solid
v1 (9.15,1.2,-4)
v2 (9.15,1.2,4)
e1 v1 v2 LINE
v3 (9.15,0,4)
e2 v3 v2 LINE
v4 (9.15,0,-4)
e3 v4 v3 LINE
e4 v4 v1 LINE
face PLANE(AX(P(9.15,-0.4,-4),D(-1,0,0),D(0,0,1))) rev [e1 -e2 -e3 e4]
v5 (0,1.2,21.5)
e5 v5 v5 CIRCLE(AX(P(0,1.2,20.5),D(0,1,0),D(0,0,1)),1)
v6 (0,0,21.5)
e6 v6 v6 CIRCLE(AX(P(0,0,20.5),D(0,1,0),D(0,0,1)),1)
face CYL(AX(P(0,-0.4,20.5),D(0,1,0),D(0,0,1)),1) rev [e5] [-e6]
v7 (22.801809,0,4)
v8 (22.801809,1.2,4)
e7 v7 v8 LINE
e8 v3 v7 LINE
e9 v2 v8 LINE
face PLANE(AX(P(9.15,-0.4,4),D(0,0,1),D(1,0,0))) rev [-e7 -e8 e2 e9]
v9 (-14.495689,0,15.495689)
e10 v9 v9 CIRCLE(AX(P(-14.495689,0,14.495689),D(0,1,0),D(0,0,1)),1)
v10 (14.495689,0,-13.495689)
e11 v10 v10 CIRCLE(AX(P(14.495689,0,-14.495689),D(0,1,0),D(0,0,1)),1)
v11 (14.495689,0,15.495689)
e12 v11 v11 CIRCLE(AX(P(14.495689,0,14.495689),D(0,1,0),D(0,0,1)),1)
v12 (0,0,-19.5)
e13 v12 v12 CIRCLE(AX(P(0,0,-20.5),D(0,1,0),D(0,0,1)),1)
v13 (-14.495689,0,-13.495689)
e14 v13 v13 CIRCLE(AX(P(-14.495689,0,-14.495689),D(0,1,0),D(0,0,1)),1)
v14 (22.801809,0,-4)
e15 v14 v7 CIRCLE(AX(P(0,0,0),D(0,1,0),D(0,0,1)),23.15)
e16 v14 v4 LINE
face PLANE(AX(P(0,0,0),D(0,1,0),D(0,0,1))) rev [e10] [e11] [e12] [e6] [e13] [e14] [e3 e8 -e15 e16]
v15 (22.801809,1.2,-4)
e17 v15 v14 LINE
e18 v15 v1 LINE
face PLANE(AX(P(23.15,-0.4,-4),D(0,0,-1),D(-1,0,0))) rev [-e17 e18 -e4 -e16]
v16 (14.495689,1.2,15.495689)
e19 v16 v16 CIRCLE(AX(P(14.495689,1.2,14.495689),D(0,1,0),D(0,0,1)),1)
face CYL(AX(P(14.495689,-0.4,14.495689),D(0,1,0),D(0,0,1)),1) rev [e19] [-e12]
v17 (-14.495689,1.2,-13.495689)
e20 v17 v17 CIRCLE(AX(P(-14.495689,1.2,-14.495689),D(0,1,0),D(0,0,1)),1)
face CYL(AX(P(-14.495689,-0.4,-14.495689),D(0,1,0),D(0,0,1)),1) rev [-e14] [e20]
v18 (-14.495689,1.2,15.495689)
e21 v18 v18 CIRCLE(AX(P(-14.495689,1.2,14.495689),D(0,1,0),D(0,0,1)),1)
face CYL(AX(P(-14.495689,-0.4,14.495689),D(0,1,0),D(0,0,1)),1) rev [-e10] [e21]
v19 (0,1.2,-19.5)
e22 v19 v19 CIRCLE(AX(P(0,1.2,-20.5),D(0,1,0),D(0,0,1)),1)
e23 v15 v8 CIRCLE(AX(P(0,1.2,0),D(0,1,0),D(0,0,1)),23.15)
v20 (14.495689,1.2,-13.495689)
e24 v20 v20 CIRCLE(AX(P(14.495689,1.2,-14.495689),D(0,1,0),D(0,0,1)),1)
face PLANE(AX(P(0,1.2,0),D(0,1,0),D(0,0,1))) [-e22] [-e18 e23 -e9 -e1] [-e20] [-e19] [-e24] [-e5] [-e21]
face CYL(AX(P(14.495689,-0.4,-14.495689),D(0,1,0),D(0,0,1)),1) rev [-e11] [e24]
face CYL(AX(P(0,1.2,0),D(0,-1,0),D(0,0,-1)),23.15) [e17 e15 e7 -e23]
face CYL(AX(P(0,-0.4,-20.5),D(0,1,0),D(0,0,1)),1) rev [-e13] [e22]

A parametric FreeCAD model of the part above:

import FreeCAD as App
import Part
import Sketcher

V = App.Vector

doc = App.newDocument("Part")
body = doc.addObject("PartDesign::Body", "Body")

# Sketch on XZ plane
sketch1 = doc.addObject("Sketcher::SketchObject", "Sketch")
body.addObject(sketch1)
sketch1.AttachmentSupport = (doc.XZ_Plane, [""])
sketch1.MapMode = "FlatFace"
sketch1.addGeometry(Part.Circle(V(0, 0, 0), V(0, 0, 1), 23), False)
sketch1.addConstraint([
    Sketcher.Constraint("Coincident", 0, 3, -1, 1),
    Sketcher.Constraint("Diameter", 0, 46.3),
])
pad1 = doc.addObject("PartDesign::Pad", "Pad")
body.addObject(pad1)
pad1.Profile = sketch1
pad1.Length = 1.2
pad1.Reversed = True

# Sketch on XZ plane
sketch2 = doc.addObject("Sketcher::SketchObject", "Sketch001")
body.addObject(sketch2)
sketch2.AttachmentSupport = (doc.XZ_Plane, [""])
sketch2.MapMode = "FlatFace"
sketch2.AttachmentOffset = App.Placement(V(0, 0, -1.2), App.Rotation())
sketch2.addGeometry([
    Part.Circle(V(0, -20.5, 0), V(0, 0, 1), 1),  # 0
    Part.Circle(V(14.5, -14.5, 0), V(0, 0, 1), 1),  # 1
    Part.Circle(V(14.5, 14.5, 0), V(0, 0, 1), 1),  # 2
    Part.Circle(V(0, 20.5, 0), V(0, 0, 1), 1),  # 3
    Part.Circle(V(-14.5, 14.5, 0), V(0, 0, 1), 1),  # 4
    Part.Circle(V(-14.5, -14.5, 0), V(0, 0, 1), 1),  # 5
    Part.LineSegment(V(23.1, -4, 0), V(9.2, -4, 0)),  # 6
    Part.LineSegment(V(9.2, -4, 0), V(9.2, 4, 0)),  # 7
    Part.LineSegment(V(9.2, 4, 0), V(23.1, 4, 0)),  # 8
    Part.LineSegment(V(23.1, 4, 0), V(23.1, -4, 0)),  # 9
], False)
sketch2.addConstraint([
    Sketcher.Constraint("Coincident", 6, 2, 7, 1),
    Sketcher.Constraint("Coincident", 7, 2, 8, 1),
    Sketcher.Constraint("Coincident", 8, 2, 9, 1),
    Sketcher.Constraint("Coincident", 9, 2, 6, 1),
    Sketcher.Constraint("Horizontal", 6),
    Sketcher.Constraint("Vertical", 7),
    Sketcher.Constraint("Horizontal", 8),
    Sketcher.Constraint("Vertical", 9),
    Sketcher.Constraint("Equal", 0, 1),
    Sketcher.Constraint("Equal", 1, 2),
    Sketcher.Constraint("Equal", 2, 3),
    Sketcher.Constraint("Equal", 3, 4),
    Sketcher.Constraint("Equal", 4, 5),
    Sketcher.Constraint("Symmetric", 0, 3, 3, 3, -1, 1),
    Sketcher.Constraint("Symmetric", 1, 3, 4, 3, -1, 1),
    Sketcher.Constraint("Symmetric", 2, 3, 5, 3, -1, 1),
    Sketcher.Constraint("Symmetric", 2, 3, 4, 3, -2),
    Sketcher.Constraint("PointOnObject", 0, 3, -2),
    Sketcher.Constraint("Diameter", 0, 2.0),
    Sketcher.Constraint("DistanceX", 6, 2, 6, 1, 14.0),
    Sketcher.Constraint("DistanceY", 7, 1, 7, 2, 8.0),
    Sketcher.Constraint("DistanceY", 6, 2, -1, 1, 4.0),
    Sketcher.Constraint("DistanceY", 0, 3, 3, 3, 41.0),
    Sketcher.Constraint("DistanceX", -1, 1, 6, 2, 9.15),
    Sketcher.Constraint("DistanceX", -1, 1, 1, 3, 14.495689),
    Sketcher.Constraint("DistanceY", 1, 3, -1, 1, 14.495689),
])
pocket1 = doc.addObject("PartDesign::Pocket", "Pocket")
body.addObject(pocket1)
pocket1.Profile = sketch2
pocket1.Length = 1.6
pocket1.Reversed = True

doc.recompute()
